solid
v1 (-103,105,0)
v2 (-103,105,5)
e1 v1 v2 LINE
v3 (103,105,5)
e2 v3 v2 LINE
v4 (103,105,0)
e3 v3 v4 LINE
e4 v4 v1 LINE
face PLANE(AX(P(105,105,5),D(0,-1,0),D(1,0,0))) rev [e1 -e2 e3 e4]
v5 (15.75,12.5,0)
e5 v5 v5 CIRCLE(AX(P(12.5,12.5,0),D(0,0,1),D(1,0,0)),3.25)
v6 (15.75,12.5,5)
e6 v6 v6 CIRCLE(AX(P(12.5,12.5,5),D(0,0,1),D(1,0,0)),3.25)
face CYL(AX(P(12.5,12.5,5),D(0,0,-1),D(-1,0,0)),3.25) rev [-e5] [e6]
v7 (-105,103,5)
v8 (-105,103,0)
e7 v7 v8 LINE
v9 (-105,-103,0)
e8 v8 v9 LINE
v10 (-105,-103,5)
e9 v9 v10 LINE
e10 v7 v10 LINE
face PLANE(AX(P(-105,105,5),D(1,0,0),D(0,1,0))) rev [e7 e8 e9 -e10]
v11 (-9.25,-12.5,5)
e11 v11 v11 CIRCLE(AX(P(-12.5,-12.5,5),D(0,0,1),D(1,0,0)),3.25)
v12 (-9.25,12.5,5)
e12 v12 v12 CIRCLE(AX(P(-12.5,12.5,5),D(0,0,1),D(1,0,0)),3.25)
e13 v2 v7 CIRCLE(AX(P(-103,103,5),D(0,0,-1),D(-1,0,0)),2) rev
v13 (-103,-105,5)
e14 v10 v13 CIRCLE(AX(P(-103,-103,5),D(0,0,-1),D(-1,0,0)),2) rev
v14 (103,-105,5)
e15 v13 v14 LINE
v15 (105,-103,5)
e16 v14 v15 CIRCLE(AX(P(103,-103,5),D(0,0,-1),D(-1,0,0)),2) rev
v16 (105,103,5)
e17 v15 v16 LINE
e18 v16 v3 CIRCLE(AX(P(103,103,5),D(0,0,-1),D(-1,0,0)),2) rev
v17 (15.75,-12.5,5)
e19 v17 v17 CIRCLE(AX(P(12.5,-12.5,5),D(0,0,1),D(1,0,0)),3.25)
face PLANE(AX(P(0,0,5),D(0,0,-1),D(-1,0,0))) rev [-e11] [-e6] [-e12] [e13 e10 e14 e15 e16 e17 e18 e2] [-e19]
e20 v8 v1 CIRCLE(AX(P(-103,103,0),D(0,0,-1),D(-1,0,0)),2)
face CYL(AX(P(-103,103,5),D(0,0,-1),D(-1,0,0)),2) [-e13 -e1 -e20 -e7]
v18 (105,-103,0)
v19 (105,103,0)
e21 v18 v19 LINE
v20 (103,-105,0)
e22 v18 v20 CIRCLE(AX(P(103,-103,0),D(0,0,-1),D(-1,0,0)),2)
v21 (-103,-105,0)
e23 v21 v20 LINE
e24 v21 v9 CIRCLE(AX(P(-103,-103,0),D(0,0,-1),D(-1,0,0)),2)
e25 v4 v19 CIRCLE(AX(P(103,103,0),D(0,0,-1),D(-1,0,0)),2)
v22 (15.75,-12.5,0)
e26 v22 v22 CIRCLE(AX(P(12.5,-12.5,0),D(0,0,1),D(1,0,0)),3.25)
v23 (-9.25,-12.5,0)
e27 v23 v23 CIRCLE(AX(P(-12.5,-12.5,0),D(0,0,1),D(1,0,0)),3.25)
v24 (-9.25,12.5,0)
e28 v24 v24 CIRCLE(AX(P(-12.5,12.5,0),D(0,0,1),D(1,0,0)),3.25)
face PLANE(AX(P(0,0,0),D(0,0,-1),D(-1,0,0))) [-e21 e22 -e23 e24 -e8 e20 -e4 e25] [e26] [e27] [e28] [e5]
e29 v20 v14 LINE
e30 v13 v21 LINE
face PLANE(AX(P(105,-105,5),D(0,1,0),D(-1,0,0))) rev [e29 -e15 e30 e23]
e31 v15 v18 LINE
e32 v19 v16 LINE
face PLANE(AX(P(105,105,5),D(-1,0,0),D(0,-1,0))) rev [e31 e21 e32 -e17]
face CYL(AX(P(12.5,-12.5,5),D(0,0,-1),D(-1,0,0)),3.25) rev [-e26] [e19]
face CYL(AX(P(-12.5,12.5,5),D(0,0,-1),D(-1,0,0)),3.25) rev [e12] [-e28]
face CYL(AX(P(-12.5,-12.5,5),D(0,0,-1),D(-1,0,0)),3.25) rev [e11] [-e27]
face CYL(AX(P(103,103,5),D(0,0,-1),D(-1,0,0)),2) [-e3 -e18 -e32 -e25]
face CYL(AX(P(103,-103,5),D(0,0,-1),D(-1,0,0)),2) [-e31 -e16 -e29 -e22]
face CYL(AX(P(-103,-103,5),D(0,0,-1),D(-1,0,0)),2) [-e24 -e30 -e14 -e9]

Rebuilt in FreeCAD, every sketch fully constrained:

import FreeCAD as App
import Part
import Sketcher
Q = App.Units.Quantity


def edges_at(feature, points):
    """Names of the edges that pass closest to the given points."""
    edges = feature.Shape.Edges
    near = lambda p: min(range(len(edges)), key=lambda i: edges[i].distToShape(Part.Vertex(*p))[0])
    return sorted({f"Edge{near(p) + 1}" for p in points})


def add_polygon(sketch, points):
    """Adds a closed chain of lines whose ends are joined by coincident constraints."""
    first, n = sketch.GeometryCount, len(points)
    for a, b in zip(points, points[1:] + points[:1]):
        sketch.addGeometry(Part.LineSegment(App.Vector(*a, 0), App.Vector(*b, 0)), False)
    for i in range(n):
        sketch.addConstraint(Sketcher.Constraint("Coincident", first + i, 2, first + (i + 1) % n, 1))

doc = App.newDocument("Part")
body = doc.addObject("PartDesign::Body", "Body")

# Sketch on XY plane
sketch1 = body.newObject("Sketcher::SketchObject", "Sketch")
sketch1.AttachmentSupport = (doc.getObject("XY_Plane"), [""])
sketch1.MapMode = "FlatFace"
add_polygon(sketch1, [(-105, 105), (-105, -105), (105, -105), (105, 105)])  # lines 0-3
sketch1.addGeometry(Part.Circle(App.Vector(-12.5, -12.5, 0), App.Vector(0, 0, 1), 3.25), False)  # 4
sketch1.addGeometry(Part.Circle(App.Vector(12.5, -12.5, 0), App.Vector(0, 0, 1), 3.25), False)  # 5
sketch1.addGeometry(Part.Circle(App.Vector(-12.5, 12.5, 0), App.Vector(0, 0, 1), 3.25), False)  # 6
sketch1.addGeometry(Part.Circle(App.Vector(12.5, 12.5, 0), App.Vector(0, 0, 1), 3.25), False)  # 7
sketch1.addConstraint([
    Sketcher.Constraint("Vertical", 0),
    Sketcher.Constraint("Horizontal", 1),
    Sketcher.Constraint("Vertical", 2),
    Sketcher.Constraint("Horizontal", 3),
    Sketcher.Constraint("Equal", 4, 5),
    Sketcher.Constraint("Equal", 5, 6),
    Sketcher.Constraint("Equal", 6, 7),
    Sketcher.Constraint("Symmetric", 5, 3, 6, 3, -1, 1),
    Sketcher.Constraint("Symmetric", 4, 3, 7, 3, -1, 1),
    Sketcher.Constraint("Symmetric", 0, 2, 2, 2, -1, 1),
    Sketcher.Constraint("Symmetric", 4, 3, 5, 3, -2),
    Sketcher.Constraint("Equal", 3, 0),
    Sketcher.Constraint("Diameter", 4, Q("6.5 mm")),
    Sketcher.Constraint("DistanceX", 1, 1, 1, 2, Q("210 mm")),
    Sketcher.Constraint("DistanceX", 4, 3, 5, 3, Q("25 mm")),
    Sketcher.Constraint("DistanceY", 4, 3, 6, 3, Q("25 mm")),
])
pad1 = body.newObject("PartDesign::Pad", "Pad")
pad1.Profile = sketch1
pad1.Length = 5
doc.recompute()

fillet = body.newObject("PartDesign::Fillet", "Fillet")
fillet.Base = (pad1, edges_at(pad1, [
    (-105, 105, 2.5),
    (105, 105, 2.5),
    (105, -105, 2.5),
    (-105, -105, 2.5),
]))
fillet.Radius = 2

doc.recompute()
